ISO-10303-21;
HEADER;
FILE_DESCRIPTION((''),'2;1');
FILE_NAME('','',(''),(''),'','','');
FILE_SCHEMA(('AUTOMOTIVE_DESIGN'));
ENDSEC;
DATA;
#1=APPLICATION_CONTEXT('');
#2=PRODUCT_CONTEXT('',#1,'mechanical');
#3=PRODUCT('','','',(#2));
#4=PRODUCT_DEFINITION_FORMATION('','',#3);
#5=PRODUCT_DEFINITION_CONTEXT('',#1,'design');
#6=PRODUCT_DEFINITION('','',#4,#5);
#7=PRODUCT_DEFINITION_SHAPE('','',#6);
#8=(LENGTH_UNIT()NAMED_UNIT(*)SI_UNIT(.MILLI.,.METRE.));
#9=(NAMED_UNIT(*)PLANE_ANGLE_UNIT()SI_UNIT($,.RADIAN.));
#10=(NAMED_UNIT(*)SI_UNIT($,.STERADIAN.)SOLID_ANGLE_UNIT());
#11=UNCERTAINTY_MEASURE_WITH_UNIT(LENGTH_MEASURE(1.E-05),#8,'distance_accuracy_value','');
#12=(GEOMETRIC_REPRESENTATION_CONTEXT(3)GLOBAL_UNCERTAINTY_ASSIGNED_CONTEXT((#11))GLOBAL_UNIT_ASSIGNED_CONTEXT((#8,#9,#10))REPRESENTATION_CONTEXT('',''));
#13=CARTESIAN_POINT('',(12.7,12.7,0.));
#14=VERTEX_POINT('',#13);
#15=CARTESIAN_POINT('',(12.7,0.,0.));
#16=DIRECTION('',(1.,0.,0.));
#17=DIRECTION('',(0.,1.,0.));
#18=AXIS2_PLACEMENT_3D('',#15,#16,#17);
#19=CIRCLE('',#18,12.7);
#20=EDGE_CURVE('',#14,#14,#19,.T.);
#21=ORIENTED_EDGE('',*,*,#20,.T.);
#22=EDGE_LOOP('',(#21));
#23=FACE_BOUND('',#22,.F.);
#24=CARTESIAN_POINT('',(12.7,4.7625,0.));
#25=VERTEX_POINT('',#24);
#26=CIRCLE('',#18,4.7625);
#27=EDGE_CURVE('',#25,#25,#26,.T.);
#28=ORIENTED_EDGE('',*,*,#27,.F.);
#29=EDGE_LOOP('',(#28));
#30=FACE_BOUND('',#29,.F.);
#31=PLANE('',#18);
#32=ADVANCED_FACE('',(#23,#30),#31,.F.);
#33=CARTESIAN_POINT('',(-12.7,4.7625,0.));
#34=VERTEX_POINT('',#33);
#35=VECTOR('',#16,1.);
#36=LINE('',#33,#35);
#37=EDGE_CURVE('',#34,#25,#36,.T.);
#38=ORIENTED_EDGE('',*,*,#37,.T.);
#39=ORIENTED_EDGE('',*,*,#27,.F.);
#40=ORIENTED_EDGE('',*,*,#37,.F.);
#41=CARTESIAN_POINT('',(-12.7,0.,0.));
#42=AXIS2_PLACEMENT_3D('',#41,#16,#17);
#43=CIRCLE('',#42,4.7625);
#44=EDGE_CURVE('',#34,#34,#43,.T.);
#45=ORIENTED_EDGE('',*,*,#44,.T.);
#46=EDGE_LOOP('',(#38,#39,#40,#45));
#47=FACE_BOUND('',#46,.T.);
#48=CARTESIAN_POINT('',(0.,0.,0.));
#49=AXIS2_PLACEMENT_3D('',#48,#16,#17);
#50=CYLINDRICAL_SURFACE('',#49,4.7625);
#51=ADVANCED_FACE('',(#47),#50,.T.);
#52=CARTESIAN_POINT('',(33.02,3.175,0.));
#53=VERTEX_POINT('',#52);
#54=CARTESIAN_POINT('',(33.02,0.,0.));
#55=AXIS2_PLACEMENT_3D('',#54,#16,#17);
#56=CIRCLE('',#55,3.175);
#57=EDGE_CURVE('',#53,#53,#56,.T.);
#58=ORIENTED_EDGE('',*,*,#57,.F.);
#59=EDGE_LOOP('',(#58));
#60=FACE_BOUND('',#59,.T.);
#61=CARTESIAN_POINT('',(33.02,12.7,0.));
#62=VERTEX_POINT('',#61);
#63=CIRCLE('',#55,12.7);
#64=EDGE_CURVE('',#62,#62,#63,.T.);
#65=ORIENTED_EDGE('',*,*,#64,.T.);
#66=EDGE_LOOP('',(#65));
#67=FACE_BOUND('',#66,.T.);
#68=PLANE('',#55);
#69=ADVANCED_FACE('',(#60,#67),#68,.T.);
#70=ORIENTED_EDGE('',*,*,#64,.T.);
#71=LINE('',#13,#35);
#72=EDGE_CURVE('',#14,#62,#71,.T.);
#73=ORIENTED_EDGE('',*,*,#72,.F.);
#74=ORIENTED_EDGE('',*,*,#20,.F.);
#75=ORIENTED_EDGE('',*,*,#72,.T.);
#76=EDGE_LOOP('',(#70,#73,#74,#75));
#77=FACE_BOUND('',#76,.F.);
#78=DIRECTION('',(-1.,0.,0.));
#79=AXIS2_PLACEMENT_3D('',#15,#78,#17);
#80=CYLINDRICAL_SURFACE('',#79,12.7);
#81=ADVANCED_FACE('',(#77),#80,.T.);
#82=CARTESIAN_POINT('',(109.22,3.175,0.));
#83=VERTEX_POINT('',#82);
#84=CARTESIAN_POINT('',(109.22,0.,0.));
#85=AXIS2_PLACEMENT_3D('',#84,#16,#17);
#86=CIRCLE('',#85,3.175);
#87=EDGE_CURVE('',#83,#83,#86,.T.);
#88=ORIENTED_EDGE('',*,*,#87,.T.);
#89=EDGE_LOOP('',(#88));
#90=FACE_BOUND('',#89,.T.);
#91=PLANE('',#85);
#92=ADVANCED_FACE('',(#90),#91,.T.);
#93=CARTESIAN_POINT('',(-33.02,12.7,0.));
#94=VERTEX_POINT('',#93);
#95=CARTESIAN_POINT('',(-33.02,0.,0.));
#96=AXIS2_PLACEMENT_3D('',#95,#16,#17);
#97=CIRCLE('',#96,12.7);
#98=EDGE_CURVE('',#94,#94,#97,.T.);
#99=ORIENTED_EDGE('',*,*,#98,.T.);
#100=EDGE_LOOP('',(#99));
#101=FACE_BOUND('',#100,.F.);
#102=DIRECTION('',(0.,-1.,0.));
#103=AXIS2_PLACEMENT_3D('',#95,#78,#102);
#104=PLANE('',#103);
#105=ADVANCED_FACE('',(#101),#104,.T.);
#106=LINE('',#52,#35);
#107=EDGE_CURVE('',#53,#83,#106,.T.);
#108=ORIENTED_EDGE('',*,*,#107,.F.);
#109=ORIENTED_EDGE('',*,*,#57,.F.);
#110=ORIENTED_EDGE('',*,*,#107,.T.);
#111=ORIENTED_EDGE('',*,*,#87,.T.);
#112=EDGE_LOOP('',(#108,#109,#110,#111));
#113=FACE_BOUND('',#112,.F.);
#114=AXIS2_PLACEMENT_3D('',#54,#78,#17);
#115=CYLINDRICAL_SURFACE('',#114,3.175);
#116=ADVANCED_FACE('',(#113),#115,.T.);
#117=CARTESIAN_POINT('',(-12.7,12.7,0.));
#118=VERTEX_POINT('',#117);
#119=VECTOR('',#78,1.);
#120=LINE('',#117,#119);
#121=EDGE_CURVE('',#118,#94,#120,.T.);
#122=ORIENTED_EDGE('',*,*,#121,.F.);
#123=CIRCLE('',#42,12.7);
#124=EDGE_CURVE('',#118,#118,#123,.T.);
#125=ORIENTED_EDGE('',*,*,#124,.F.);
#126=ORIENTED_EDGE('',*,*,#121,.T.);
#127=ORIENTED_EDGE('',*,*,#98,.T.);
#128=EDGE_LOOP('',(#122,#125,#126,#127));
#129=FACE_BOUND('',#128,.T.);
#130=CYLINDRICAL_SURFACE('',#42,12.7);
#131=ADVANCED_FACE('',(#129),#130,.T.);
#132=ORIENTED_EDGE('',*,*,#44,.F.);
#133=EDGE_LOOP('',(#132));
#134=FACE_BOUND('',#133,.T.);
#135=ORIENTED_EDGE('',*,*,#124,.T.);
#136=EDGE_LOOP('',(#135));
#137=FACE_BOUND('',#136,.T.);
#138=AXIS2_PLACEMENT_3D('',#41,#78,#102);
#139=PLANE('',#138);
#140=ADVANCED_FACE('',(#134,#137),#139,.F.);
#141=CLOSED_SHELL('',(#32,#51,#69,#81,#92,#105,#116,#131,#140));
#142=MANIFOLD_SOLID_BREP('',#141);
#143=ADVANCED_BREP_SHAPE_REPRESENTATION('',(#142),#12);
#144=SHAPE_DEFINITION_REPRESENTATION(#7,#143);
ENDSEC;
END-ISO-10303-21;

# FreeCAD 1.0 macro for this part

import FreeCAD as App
import Part
import Sketcher
Q = App.Units.Quantity

doc = App.newDocument("Part")
params = doc.addObject("Spreadsheet::Sheet", "Params")
for row, (alias, value) in enumerate([
    ("sketch1_diameter", "0.375 in"),
    ("pad1_length", "0.5 in"),
    ("sketch2_diameter", "1 in"),
    ("pad2_length", "0.8 in"),
    ("sketch3_diameter", "0.25 in"),
    ("pad3_length", "3 in"),
], start=1):
    params.set(f"A{row}", alias)
    params.set(f"B{row}", "=" + value)
    params.setAlias(f"B{row}", alias)

body = doc.addObject("PartDesign::Body", "Body")

# Sketch on YZ plane
sketch1 = body.newObject("Sketcher::SketchObject", "Sketch")
sketch1.AttachmentSupport = (doc.getObject("YZ_Plane"), [""])
sketch1.MapMode = "FlatFace"
sketch1.addGeometry(Part.Circle(App.Vector(0, 0, 0), App.Vector(0, 0, 1), 4.7625), False)
sketch1.addConstraint([
    Sketcher.Constraint("Coincident", 0, 3, -1, 1),
    Sketcher.Constraint("Diameter", 0, Q("0.375 in")),
])
sketch1.setExpression("Constraints[1]", "Params.sketch1_diameter")
pad1 = body.newObject("PartDesign::Pad", "Pad")
pad1.Profile = sketch1
pad1.setExpression("Length", "Params.pad1_length")

# Sketch on YZ plane
sketch2 = body.newObject("Sketcher::SketchObject", "Sketch001")
sketch2.AttachmentSupport = (doc.getObject("YZ_Plane"), [""])
sketch2.MapMode = "FlatFace"
sketch2.AttachmentOffset = App.Placement(App.Vector(0, 0, 0.5 * 25.4), App.Rotation())
sketch2.addGeometry(Part.Circle(App.Vector(0, 0, 0), App.Vector(0, 0, 1), 12.7), False)
sketch2.addConstraint([
    Sketcher.Constraint("Coincident", 0, 3, -1, 1),
    Sketcher.Constraint("Diameter", 0, Q("1 in")),
])
sketch2.setExpression("Constraints[1]", "Params.sketch2_diameter")
pad2 = body.newObject("PartDesign::Pad", "Pad001")
pad2.Profile = sketch2
pad2.setExpression("Length", "Params.pad2_length")
body2 = doc.addObject("PartDesign::Body", "Body001")
doc.recompute()

body2.BaseFeature = body
doc.recompute()

mirroring = doc.addObject("Part::Mirroring", "Mirroring")
mirroring.Source = body
mirroring.Base = App.Vector(0, 0, 0)
mirroring.Normal = App.Vector(1, 0, 0)
body3 = doc.addObject("PartDesign::Body", "Body002")
body3.BaseFeature = mirroring
boolean = body2.newObject("PartDesign::Boolean", "Boolean")
boolean.Type = "Fuse"
boolean.addObjects([body3])
doc.recompute()

# Sketch on YZ plane
sketch3 = body2.newObject("Sketcher::SketchObject", "Sketch002")
sketch3.AttachmentSupport = (doc.getObject("YZ_Plane001"), [""])
sketch3.MapMode = "FlatFace"
sketch3.AttachmentOffset = App.Placement(App.Vector(0, 0, 1.3 * 25.4), App.Rotation())
sketch3.addGeometry(Part.Circle(App.Vector(0, 0, 0), App.Vector(0, 0, 1), 3.175), False)
sketch3.addConstraint([
    Sketcher.Constraint("Coincident", 0, 3, -1, 1),
    Sketcher.Constraint("Diameter", 0, Q("0.25 in")),
])
sketch3.setExpression("Constraints[1]", "Params.sketch3_diameter")
pad3 = body2.newObject("PartDesign::Pad", "Pad002")
pad3.Profile = sketch3
pad3.setExpression("Length", "Params.pad3_length")
mirroring.Visibility = False

doc.recompute()
